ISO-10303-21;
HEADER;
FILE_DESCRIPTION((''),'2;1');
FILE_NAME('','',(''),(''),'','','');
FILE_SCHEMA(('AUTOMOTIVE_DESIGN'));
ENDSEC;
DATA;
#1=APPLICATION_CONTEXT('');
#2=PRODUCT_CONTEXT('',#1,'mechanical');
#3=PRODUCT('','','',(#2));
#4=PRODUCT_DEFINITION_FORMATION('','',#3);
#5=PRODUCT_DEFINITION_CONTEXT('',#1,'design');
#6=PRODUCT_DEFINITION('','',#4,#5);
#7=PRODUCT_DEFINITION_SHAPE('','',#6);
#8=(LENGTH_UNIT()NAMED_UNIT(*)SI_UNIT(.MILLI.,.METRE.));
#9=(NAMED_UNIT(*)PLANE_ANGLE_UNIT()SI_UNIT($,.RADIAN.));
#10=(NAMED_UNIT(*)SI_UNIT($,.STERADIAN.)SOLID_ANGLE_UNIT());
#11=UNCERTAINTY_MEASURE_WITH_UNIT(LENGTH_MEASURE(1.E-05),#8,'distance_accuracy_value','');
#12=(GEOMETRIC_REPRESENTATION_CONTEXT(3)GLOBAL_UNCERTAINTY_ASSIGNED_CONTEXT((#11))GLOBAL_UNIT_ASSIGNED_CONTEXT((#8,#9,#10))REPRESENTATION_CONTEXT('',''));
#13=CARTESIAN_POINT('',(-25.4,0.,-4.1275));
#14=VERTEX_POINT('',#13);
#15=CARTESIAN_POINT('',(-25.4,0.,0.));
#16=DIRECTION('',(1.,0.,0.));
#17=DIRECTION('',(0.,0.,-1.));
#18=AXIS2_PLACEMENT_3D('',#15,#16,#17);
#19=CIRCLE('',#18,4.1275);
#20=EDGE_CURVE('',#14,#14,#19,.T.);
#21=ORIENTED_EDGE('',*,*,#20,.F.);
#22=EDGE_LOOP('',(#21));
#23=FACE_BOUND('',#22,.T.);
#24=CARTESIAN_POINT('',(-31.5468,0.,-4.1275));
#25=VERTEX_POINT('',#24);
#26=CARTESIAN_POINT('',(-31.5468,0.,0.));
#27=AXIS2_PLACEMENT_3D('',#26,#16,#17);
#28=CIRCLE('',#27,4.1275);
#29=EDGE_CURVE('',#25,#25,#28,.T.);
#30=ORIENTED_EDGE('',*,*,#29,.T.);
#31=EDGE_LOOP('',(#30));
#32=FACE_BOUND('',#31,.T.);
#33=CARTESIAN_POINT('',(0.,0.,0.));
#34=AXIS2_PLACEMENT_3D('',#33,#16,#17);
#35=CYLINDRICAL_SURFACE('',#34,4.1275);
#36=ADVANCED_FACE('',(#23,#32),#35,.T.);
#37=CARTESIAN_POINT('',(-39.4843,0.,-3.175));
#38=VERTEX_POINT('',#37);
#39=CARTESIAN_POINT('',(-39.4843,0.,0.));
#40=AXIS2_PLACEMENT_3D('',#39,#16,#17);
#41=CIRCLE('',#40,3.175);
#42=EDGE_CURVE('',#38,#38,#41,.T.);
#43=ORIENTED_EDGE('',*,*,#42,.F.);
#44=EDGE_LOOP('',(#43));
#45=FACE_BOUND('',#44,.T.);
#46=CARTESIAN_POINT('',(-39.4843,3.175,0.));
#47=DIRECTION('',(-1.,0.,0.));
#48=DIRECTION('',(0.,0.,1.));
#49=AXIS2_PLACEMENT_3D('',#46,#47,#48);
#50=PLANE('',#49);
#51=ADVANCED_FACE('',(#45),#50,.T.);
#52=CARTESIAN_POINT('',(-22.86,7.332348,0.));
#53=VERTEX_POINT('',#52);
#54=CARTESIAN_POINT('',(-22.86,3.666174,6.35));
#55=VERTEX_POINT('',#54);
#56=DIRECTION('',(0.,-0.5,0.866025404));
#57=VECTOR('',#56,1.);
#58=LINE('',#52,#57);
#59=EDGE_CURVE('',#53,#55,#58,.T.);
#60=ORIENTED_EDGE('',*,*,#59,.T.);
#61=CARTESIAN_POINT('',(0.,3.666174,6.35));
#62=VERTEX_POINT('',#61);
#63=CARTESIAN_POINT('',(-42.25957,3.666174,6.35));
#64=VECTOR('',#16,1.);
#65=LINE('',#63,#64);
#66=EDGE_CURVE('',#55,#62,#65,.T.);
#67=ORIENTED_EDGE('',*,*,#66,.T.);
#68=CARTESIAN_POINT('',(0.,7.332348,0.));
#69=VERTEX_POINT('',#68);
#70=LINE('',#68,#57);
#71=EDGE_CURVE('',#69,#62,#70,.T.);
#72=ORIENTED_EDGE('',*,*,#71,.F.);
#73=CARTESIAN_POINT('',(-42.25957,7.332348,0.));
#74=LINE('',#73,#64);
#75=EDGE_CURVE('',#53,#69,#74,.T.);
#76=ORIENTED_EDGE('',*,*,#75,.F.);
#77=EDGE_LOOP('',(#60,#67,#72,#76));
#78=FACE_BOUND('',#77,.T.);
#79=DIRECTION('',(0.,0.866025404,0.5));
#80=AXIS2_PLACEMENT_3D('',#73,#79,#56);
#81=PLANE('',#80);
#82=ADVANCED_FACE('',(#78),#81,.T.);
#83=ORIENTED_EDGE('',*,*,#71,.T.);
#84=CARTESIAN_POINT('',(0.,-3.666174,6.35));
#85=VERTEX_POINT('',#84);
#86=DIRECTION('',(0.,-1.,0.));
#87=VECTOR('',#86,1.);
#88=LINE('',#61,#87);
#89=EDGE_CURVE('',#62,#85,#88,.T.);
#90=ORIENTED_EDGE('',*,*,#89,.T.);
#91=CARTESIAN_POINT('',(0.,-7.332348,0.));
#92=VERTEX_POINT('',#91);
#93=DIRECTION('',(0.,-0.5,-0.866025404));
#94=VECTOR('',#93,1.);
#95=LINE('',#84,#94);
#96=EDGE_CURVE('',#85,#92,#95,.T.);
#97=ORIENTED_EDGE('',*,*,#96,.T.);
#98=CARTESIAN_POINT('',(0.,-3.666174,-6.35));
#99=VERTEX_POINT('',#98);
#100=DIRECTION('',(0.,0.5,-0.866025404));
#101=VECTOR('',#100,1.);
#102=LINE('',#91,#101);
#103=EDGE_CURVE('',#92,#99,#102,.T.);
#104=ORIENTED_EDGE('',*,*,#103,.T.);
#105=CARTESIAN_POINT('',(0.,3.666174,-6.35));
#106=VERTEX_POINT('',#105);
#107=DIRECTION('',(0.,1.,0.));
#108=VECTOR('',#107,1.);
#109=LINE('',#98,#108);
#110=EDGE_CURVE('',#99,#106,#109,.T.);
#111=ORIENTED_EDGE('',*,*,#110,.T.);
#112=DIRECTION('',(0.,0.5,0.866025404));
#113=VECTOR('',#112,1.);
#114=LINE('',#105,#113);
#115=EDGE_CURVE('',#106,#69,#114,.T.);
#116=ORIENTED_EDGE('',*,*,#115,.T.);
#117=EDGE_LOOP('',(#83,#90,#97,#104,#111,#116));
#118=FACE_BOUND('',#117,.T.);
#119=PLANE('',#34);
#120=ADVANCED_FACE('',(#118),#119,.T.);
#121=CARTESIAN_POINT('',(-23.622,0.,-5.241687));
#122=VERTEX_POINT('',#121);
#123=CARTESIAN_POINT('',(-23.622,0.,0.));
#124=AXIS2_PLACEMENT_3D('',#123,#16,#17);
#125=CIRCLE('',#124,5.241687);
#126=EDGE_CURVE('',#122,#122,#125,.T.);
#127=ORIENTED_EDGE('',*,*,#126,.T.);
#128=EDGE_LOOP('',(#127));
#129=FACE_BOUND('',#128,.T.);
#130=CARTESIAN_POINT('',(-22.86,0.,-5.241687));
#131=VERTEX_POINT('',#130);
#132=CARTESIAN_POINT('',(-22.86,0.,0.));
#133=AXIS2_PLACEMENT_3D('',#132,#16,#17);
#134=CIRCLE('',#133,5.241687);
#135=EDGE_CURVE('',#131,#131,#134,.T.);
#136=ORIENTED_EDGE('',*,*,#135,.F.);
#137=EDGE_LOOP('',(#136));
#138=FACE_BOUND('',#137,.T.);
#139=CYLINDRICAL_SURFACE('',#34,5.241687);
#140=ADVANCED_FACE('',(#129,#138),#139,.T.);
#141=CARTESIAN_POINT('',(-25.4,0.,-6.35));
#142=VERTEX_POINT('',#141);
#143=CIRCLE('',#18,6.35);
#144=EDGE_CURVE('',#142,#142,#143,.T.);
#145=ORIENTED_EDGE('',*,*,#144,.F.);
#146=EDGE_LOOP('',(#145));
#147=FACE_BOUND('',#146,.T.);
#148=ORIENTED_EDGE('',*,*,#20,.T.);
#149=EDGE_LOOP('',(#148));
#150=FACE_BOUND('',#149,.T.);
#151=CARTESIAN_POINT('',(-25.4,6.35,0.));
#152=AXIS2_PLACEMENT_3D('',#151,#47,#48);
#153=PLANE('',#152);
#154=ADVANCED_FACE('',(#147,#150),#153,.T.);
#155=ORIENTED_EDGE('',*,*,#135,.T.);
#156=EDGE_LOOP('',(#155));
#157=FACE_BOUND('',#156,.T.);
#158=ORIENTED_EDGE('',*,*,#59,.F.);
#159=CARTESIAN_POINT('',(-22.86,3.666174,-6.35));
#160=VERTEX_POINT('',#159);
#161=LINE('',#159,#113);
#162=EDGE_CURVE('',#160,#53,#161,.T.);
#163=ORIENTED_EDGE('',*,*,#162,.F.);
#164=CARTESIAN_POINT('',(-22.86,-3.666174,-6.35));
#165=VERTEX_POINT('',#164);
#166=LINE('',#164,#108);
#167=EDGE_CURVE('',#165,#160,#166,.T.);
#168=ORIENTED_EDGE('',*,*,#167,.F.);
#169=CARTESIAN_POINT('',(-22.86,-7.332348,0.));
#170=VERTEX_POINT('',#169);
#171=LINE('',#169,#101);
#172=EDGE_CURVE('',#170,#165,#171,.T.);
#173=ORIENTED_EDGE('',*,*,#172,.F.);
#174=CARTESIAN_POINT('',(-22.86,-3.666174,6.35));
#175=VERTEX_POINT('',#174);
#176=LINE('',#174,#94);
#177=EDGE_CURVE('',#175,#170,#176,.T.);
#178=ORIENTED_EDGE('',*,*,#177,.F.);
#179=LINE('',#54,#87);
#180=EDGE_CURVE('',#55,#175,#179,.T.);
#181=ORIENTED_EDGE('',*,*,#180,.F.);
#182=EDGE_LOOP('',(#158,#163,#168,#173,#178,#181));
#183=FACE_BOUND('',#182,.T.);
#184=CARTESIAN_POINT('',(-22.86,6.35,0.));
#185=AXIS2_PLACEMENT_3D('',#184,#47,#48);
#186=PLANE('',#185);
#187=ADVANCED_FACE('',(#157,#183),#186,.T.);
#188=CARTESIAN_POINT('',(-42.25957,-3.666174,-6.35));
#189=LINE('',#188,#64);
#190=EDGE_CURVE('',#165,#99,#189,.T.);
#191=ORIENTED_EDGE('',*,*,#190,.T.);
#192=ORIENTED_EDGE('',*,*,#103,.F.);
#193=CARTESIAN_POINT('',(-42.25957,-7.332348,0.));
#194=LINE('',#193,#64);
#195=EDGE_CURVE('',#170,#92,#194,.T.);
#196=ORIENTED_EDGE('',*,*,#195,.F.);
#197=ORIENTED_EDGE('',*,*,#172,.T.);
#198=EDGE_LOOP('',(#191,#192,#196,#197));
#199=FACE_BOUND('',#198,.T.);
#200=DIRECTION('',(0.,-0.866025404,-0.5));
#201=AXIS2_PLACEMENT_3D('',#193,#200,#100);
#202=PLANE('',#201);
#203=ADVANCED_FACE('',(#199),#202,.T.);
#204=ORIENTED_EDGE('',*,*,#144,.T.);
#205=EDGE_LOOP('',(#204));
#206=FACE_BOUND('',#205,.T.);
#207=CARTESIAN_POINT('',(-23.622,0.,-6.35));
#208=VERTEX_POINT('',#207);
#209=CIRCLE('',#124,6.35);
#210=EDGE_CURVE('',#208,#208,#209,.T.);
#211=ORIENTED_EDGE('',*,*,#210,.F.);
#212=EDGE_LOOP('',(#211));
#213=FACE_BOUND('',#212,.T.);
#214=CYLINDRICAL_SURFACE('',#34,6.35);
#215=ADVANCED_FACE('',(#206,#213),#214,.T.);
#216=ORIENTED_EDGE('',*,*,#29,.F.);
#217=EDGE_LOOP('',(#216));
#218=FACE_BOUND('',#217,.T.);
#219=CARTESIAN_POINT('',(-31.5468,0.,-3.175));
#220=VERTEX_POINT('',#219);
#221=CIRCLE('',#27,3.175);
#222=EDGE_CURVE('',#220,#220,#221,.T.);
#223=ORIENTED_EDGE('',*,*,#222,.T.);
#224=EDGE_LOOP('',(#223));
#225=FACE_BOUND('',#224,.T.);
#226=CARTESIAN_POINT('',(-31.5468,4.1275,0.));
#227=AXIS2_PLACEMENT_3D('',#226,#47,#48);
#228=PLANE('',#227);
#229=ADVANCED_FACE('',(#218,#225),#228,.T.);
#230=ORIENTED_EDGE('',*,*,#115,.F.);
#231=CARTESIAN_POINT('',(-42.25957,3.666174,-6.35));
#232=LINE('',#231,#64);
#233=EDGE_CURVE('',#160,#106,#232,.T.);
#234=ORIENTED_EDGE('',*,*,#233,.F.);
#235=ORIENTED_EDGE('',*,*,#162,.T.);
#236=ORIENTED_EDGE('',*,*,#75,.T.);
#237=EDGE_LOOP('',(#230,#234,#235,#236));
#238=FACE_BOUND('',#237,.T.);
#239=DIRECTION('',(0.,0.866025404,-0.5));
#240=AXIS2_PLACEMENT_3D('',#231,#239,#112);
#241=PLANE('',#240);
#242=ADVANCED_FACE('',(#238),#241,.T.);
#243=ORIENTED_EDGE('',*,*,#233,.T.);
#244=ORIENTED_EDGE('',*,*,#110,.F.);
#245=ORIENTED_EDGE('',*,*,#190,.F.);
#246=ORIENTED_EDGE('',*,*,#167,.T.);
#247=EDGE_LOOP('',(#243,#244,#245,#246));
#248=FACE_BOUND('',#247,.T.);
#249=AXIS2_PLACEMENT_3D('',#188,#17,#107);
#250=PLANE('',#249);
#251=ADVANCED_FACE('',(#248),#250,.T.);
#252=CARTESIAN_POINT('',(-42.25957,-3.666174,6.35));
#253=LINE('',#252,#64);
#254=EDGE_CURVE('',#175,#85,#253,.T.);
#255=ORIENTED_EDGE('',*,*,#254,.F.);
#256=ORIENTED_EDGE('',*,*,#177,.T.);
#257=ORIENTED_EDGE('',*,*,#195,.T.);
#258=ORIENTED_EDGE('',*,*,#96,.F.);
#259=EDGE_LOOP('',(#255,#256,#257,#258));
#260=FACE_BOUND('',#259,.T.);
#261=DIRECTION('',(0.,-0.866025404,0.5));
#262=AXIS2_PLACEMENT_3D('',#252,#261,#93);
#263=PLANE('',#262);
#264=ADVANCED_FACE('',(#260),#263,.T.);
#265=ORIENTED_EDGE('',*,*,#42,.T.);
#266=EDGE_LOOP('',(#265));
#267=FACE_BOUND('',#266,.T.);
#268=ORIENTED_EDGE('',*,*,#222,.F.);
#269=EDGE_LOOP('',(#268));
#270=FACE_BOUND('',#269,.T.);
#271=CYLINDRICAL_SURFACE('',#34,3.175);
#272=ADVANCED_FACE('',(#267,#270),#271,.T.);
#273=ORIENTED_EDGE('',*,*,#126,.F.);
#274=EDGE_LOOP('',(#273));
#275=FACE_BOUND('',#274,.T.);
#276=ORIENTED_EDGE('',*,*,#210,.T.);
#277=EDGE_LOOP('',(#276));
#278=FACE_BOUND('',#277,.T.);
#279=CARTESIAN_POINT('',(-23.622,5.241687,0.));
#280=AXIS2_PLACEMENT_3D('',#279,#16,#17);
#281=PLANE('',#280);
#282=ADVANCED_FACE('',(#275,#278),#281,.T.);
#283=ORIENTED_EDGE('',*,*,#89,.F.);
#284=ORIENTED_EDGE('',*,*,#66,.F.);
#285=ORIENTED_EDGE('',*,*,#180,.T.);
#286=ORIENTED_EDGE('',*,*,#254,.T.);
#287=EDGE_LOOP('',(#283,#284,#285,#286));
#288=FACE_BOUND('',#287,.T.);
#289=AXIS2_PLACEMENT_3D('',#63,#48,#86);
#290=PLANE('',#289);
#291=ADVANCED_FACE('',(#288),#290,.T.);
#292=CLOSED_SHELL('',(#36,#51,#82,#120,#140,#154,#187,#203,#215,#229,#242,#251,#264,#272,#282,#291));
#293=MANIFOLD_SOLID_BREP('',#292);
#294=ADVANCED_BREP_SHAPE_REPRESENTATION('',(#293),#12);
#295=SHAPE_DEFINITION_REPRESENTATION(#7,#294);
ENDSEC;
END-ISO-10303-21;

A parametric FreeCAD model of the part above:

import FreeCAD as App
import Part
import Sketcher
from FreeCAD import Vector
Q = App.Units.Quantity


def add_polygon(sketch, points):
    """Adds a closed chain of lines whose ends are joined by coincident constraints."""
    first, n = sketch.GeometryCount, len(points)
    for a, b in zip(points, points[1:] + points[:1]):
        sketch.addGeometry(Part.LineSegment(App.Vector(*a, 0), App.Vector(*b, 0)), False)
    for i in range(n):
        sketch.addConstraint(Sketcher.Constraint("Coincident", first + i, 2, first + (i + 1) % n, 1))

doc = App.newDocument("Part")
body = doc.addObject("PartDesign::Body", "Body")

# Sketch on XY plane
sketch1 = body.newObject("Sketcher::SketchObject", "Sketch")
sketch1.AttachmentSupport = (doc.getObject("XY_Plane"), [""])
sketch1.MapMode = "FlatFace"
add_polygon(sketch1, [(0, 0), (0, 6.3), (-22.9, 6.3), (-22.9, 5.2), (-23.6, 5.2), (-23.6, 6.3), (-25.4, 6.3), (-25.4, 4.1), (-31.5, 4.1), (-31.5, 3.2), (-39.5, 3.2), (-39.5, 0)])  # lines 0-11
sketch1.addConstraint(Sketcher.Constraint("Vertical", 0))
sketch1.addConstraint(Sketcher.Constraint("Horizontal", 1))
sketch1.addConstraint(Sketcher.Constraint("Vertical", 2))
sketch1.addConstraint(Sketcher.Constraint("Horizontal", 3))
sketch1.addConstraint(Sketcher.Constraint("Vertical", 4))
sketch1.addConstraint(Sketcher.Constraint("Horizontal", 5))
sketch1.addConstraint(Sketcher.Constraint("Vertical", 6))
sketch1.addConstraint(Sketcher.Constraint("Horizontal", 7))
sketch1.addConstraint(Sketcher.Constraint("Vertical", 8))
sketch1.addConstraint(Sketcher.Constraint("Horizontal", 9))
sketch1.addConstraint(Sketcher.Constraint("Vertical", 10))
sketch1.addConstraint(Sketcher.Constraint("Horizontal", 11))
sketch1.addConstraint(Sketcher.Constraint("Coincident", 11, 2, -1, 1))
sketch1.addConstraint(Sketcher.Constraint("Horizontal", 1, 2, 4, 2))
sketch1.addConstraint(Sketcher.Constraint("DistanceX", 1, 2, 1, 1, Q("0.9 in")))
sketch1.addConstraint(Sketcher.Constraint("DistanceX", 5, 2, -1, 1, Q("1 in")))
sketch1.addConstraint(Sketcher.Constraint("DistanceX", 3, 2, 3, 1, Q("0.03 in")))
sketch1.addConstraint(Sketcher.Constraint("DistanceY", 0, 1, 0, 2, Q("0.25 in")))
sketch1.addConstraint(Sketcher.Constraint("DistanceX", 7, 2, 7, 1, Q("0.242 in")))
sketch1.addConstraint(Sketcher.Constraint("DistanceX", 9, 2, 9, 1, Q("0.3125 in")))
sketch1.addConstraint(Sketcher.Constraint("DistanceY", 10, 2, 10, 1, Q("0.125 in")))
sketch1.addConstraint(Sketcher.Constraint("DistanceY", 6, 2, 6, 1, Q("0.0875 in")))
sketch1.addConstraint(Sketcher.Constraint("DistanceY", 2, 2, 2, 1, 1.108313))
revolution = body.newObject("PartDesign::Revolution", "Revolution")
revolution.Profile = sketch1
revolution.ReferenceAxis = (sketch1, ["H_Axis"])
revolution.Angle = 360

# Sketch on YZ plane
sketch2 = body.newObject("Sketcher::SketchObject", "Sketch001")
sketch2.AttachmentSupport = (doc.getObject("YZ_Plane"), [""])
sketch2.MapMode = "FlatFace"
add_polygon(sketch2, [(4, 6), (-4, 6), (-7, 0), (-4, -6), (4, -6), (7, 0)])  # lines 0-5
sketch2.addConstraint(Sketcher.Constraint("Horizontal", 0))
sketch2.addConstraint(Sketcher.Constraint("Horizontal", 3))
sketch2.addConstraint(Sketcher.Constraint("Symmetric", 0, 2, 3, 2, -1, 1))
sketch2.addConstraint(Sketcher.Constraint("Symmetric", 1, 2, 4, 2, -1, 1))
sketch2.addConstraint(Sketcher.Constraint("PointOnObject", 1, 2, -1))
sketch2.addConstraint(Sketcher.Constraint("Parallel", 2, 5))
sketch2.addConstraint(Sketcher.Constraint("Vertical", 0, 2, 2, 2))
sketch2.addConstraint(Sketcher.Constraint("Angle", 1, Q("-120 deg")))
sketch2.addConstraint(Sketcher.Constraint("DistanceY", 2, 2, 0, 2, Q("0.5 in")))
sketch2.addConstraint(Sketcher.Constraint("DistanceX", 0, 2, 0, 1, 7.332348))
pad1 = body.newObject("PartDesign::Pad", "Pad")
pad1.Profile = sketch2
pad1.Length = Q("0.9 in")
pad1.Reversed = True

doc.recompute()
